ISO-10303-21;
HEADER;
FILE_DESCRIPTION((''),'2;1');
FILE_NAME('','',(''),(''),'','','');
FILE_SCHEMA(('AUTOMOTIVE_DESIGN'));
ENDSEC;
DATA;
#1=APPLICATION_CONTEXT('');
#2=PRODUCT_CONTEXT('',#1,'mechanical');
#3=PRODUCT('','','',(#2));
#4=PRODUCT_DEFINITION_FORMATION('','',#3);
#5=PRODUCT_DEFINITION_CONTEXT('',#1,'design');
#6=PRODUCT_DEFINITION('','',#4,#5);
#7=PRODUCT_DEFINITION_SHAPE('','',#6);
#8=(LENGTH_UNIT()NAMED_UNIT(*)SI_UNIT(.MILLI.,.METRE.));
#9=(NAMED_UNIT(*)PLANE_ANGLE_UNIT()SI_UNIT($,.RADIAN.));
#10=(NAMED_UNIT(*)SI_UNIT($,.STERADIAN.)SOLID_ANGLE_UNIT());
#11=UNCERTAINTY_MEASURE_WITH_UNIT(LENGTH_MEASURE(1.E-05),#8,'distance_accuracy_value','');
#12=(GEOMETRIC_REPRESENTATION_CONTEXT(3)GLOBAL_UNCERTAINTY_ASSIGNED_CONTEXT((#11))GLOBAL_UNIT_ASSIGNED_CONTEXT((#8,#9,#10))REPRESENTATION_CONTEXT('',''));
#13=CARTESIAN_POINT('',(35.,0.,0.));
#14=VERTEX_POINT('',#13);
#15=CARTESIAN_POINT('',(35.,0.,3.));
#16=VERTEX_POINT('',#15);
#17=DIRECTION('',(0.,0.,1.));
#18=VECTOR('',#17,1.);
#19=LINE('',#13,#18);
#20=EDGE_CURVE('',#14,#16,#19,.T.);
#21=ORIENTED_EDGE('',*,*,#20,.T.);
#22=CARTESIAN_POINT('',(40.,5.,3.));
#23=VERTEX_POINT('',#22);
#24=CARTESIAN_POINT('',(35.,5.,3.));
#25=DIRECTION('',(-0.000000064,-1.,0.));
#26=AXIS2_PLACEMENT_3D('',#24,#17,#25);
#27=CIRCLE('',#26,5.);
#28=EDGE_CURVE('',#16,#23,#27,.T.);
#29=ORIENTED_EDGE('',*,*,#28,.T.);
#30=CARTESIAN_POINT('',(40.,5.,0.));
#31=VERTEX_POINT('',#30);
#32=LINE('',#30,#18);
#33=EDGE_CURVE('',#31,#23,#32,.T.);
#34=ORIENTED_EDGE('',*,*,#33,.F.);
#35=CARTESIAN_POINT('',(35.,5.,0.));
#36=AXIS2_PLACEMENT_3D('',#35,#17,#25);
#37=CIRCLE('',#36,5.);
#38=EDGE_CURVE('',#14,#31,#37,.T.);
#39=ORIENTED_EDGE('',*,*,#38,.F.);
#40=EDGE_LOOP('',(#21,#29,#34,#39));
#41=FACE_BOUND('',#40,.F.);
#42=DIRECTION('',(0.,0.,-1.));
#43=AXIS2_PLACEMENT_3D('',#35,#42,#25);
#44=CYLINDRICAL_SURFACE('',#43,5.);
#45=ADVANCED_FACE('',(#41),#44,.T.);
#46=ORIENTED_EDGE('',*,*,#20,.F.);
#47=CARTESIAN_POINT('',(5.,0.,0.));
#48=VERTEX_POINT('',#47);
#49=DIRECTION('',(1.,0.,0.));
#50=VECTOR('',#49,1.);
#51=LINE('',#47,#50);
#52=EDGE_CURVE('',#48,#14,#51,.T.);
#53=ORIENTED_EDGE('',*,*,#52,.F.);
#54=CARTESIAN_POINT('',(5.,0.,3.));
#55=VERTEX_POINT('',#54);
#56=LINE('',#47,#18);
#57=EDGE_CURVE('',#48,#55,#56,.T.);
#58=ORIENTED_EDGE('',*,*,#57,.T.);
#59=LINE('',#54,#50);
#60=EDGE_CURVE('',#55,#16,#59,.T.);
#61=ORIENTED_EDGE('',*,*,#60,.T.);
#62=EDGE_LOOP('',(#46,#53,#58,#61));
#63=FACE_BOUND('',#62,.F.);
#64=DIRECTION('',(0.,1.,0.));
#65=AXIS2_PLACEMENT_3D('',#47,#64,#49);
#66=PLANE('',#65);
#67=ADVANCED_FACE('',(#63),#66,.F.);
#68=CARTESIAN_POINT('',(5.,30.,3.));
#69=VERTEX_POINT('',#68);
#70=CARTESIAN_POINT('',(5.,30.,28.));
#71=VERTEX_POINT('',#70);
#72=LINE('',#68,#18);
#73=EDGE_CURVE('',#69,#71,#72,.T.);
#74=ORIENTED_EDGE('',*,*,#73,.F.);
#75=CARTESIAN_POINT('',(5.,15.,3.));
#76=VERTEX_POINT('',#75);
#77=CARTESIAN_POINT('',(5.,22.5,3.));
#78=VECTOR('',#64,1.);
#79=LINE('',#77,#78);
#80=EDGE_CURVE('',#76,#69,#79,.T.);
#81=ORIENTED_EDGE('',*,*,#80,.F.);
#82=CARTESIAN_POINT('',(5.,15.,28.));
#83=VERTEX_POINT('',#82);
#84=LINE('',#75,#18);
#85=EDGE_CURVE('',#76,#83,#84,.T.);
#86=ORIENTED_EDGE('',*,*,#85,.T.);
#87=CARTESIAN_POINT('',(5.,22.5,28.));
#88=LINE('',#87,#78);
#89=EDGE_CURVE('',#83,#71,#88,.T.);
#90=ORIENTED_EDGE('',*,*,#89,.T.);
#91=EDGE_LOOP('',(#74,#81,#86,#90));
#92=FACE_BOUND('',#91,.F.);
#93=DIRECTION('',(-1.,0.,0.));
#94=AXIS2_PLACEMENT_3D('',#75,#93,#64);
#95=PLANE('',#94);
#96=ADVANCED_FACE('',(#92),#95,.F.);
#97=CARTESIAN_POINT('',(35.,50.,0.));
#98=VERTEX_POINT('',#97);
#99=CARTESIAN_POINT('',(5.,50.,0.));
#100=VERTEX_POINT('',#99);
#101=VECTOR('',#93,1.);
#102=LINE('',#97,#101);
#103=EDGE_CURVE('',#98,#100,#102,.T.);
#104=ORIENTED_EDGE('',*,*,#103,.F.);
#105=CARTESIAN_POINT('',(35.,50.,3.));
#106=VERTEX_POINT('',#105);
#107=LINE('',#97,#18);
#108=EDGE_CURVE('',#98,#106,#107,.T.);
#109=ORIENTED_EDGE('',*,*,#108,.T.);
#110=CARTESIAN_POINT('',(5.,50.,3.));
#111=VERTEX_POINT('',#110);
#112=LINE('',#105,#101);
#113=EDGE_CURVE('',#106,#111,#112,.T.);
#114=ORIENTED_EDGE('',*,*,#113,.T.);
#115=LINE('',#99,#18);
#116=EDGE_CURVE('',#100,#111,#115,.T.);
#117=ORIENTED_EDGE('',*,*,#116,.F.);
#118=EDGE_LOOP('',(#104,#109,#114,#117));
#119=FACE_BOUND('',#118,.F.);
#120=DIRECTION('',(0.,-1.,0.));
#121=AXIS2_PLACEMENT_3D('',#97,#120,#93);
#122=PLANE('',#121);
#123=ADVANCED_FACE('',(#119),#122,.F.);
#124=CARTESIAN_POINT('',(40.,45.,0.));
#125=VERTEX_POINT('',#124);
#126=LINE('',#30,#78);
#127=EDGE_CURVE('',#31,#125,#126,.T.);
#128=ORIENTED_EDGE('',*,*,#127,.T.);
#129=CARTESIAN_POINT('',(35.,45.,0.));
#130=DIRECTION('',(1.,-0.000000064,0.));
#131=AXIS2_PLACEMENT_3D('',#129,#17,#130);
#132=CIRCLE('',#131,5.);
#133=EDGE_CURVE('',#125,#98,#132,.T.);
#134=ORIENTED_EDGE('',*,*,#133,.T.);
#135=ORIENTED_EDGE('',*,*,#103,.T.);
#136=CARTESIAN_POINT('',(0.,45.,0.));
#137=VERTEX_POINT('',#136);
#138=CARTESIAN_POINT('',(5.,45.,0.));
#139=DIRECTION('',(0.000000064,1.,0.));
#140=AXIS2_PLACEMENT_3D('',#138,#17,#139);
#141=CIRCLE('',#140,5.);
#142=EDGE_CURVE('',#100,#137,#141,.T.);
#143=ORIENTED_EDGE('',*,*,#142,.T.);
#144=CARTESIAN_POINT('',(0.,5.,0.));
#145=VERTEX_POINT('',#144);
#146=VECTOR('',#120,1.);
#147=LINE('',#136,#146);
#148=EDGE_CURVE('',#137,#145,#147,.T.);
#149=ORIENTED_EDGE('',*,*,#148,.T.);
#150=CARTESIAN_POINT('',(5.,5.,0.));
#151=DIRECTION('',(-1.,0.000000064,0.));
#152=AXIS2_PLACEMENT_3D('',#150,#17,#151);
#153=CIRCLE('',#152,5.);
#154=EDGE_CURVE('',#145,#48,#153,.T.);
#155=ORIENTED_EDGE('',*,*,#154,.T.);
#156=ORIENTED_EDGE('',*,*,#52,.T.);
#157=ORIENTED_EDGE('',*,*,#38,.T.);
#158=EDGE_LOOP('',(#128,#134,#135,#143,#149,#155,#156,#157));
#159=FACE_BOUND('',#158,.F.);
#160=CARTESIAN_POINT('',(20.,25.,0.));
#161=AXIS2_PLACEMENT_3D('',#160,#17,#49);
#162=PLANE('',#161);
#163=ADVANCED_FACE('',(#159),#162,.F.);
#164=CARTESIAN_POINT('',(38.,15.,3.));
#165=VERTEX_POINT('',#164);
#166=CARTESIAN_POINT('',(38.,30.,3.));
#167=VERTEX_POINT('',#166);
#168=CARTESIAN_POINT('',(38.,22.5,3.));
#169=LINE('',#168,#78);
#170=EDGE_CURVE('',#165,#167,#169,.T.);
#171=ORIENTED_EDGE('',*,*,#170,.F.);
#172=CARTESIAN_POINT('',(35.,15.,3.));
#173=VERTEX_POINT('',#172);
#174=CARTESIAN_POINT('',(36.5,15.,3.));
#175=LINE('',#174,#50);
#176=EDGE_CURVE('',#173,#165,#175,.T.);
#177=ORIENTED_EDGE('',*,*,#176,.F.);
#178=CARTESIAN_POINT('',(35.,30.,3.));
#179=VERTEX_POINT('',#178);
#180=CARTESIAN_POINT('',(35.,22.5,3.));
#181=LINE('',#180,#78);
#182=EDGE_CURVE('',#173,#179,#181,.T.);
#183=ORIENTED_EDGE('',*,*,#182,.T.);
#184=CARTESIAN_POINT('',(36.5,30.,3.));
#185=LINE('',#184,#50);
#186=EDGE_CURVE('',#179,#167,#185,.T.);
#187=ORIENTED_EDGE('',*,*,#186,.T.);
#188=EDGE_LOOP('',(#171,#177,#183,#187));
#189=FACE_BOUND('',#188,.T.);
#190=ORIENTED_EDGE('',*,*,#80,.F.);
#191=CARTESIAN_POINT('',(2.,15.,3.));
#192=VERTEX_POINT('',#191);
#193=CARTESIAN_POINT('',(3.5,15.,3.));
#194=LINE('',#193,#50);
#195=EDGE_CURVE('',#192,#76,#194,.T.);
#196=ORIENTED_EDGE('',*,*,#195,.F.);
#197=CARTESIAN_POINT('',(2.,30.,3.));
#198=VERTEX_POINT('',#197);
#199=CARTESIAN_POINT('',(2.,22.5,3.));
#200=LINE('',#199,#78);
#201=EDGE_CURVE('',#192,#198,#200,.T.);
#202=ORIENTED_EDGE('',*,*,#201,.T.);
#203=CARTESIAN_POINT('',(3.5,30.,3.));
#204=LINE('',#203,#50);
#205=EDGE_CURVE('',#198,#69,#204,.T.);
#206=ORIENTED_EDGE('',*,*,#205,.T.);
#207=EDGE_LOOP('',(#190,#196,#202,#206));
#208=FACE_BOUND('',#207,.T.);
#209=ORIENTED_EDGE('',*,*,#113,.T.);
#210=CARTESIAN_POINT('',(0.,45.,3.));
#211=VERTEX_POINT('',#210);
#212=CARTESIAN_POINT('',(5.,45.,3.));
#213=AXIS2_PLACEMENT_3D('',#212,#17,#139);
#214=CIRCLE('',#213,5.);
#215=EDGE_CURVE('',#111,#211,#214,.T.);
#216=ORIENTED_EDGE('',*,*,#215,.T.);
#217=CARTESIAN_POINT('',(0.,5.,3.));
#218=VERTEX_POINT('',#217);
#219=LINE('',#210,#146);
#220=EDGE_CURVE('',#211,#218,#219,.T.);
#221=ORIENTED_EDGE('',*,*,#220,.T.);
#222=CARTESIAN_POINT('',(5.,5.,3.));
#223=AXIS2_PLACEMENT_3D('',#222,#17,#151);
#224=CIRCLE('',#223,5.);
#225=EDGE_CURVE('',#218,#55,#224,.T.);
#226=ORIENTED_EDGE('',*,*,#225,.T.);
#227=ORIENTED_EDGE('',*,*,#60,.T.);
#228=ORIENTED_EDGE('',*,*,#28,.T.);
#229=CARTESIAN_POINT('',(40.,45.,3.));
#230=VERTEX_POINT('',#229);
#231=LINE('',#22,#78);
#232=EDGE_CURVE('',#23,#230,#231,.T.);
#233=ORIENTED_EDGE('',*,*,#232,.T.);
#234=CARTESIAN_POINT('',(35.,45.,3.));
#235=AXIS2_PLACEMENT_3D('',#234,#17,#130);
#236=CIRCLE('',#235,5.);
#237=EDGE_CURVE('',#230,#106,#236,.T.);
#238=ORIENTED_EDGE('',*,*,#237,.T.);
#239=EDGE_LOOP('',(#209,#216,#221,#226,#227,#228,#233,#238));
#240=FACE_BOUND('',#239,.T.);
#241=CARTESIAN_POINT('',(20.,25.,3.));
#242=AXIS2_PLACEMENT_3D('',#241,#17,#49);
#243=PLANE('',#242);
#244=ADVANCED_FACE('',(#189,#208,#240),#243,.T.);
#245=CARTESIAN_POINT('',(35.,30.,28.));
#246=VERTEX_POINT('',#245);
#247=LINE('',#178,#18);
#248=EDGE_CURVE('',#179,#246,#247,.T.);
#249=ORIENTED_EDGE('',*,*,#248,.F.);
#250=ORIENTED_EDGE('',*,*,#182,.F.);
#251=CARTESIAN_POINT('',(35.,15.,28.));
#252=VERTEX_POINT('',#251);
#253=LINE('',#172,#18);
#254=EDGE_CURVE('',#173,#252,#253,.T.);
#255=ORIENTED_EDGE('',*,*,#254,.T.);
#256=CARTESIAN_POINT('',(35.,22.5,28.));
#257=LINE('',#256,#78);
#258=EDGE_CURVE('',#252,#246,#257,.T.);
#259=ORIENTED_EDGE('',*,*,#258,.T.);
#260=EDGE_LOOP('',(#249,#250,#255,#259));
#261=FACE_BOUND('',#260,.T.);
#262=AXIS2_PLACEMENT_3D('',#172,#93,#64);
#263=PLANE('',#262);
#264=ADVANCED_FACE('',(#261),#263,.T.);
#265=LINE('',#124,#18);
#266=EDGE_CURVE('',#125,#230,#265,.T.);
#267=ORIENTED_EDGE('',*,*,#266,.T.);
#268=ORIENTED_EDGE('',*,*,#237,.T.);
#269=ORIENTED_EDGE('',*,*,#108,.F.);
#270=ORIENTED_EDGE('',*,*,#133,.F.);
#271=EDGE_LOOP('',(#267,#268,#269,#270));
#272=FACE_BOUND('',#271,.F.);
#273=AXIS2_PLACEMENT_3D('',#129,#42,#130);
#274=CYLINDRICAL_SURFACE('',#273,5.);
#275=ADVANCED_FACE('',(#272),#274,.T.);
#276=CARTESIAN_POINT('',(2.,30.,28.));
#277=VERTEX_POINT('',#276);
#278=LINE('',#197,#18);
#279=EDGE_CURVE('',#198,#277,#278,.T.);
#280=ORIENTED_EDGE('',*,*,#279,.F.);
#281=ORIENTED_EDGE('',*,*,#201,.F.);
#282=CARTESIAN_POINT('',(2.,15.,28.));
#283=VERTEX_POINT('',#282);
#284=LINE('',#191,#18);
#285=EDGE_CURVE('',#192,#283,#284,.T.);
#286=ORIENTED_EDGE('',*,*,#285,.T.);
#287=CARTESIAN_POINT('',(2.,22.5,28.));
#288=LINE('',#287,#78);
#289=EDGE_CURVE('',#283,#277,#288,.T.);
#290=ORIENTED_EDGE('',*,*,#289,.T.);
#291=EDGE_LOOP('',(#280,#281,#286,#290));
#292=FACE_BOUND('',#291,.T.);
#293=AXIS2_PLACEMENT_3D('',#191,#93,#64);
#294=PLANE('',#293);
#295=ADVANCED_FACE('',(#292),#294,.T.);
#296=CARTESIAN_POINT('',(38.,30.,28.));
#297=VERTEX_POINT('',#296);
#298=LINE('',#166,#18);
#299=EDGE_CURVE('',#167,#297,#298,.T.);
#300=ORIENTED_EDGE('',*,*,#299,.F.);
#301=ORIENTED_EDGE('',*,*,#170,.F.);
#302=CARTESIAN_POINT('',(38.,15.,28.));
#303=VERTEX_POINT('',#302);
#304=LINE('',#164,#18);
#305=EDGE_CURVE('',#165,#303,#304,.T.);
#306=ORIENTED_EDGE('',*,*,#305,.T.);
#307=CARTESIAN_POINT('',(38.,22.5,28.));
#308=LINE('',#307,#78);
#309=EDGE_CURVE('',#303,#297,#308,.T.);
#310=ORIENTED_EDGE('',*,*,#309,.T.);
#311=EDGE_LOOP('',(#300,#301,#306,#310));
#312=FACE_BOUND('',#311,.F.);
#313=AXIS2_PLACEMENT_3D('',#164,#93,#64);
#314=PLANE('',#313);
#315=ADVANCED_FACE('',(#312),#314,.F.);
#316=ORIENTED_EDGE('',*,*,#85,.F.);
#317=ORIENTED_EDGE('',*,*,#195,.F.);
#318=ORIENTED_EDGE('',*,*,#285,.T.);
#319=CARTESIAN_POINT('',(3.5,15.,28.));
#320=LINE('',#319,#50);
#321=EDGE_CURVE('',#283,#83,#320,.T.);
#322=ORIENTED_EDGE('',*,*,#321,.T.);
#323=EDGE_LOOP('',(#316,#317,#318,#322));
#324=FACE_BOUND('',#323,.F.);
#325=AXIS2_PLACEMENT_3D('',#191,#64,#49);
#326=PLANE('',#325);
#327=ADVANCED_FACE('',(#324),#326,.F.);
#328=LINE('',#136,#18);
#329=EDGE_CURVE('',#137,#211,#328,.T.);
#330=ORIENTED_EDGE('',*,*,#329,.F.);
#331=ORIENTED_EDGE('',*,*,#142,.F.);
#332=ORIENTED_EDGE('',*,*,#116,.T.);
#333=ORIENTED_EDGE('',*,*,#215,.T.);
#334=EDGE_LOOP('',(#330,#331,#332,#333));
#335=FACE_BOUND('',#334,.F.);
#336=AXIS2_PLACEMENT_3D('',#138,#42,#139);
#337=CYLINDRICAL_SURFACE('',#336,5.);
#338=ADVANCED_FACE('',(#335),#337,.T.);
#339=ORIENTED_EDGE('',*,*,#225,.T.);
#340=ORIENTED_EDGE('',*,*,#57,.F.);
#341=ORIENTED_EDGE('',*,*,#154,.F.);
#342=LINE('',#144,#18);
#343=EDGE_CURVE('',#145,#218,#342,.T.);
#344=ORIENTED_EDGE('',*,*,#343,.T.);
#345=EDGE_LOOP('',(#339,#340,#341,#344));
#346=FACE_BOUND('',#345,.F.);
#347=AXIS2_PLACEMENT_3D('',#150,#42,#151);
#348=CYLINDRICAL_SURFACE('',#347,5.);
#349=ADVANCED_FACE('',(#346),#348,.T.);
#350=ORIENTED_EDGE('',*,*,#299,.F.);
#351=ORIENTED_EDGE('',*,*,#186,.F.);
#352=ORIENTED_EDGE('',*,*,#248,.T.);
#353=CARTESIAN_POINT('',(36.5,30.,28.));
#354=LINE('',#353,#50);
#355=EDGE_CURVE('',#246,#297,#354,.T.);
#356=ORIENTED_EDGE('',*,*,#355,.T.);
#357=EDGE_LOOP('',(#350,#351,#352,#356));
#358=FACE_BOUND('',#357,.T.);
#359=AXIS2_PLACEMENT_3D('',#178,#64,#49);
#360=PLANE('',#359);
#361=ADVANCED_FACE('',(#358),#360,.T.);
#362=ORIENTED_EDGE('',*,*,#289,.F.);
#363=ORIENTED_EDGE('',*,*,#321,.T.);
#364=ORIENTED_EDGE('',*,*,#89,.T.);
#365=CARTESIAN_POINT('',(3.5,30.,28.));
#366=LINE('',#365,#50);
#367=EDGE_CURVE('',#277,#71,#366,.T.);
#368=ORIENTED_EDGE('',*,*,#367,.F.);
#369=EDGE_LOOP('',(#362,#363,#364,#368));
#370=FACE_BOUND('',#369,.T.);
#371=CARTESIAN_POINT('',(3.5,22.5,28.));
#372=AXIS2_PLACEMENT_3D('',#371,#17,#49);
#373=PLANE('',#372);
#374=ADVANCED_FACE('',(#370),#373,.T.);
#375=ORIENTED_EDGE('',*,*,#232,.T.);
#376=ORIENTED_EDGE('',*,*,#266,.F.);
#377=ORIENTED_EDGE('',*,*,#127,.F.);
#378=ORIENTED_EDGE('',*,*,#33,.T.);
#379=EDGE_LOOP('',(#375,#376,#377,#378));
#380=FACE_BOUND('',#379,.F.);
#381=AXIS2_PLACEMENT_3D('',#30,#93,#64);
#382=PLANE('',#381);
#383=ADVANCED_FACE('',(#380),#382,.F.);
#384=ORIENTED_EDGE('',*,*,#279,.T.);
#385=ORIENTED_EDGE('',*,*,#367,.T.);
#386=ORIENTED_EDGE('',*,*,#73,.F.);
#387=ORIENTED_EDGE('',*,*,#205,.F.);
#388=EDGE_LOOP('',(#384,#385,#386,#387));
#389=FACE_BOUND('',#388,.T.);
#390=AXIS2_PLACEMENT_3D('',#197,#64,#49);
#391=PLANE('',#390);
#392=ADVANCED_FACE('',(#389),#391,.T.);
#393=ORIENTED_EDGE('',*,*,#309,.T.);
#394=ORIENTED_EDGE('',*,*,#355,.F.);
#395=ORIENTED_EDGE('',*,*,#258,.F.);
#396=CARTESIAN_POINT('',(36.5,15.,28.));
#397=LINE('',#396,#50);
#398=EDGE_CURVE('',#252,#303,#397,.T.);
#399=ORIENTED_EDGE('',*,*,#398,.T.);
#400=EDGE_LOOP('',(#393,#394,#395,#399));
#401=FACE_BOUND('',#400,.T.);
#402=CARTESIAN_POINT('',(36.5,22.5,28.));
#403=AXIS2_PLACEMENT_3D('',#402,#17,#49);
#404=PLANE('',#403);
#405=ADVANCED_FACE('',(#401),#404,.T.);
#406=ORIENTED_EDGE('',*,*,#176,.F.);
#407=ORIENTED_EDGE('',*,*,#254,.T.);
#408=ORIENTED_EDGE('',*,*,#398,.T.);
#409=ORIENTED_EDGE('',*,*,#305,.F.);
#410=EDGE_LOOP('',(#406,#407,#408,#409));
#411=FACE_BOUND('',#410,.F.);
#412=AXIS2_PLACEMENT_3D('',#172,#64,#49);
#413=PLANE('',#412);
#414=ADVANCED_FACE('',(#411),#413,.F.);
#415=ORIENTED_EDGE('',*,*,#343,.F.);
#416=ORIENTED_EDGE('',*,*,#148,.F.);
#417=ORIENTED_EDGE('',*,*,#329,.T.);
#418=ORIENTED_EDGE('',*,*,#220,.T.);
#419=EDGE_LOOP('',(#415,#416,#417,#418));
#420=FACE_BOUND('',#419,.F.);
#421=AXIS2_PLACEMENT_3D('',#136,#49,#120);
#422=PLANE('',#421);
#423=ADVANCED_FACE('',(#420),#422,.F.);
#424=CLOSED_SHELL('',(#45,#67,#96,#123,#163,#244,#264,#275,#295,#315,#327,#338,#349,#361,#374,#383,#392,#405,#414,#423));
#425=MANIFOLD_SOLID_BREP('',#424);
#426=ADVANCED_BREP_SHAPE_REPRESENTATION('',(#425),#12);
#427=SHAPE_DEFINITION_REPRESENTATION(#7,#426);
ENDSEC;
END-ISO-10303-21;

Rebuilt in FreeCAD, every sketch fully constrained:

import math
import FreeCAD as App
import Part
import Sketcher
Q = App.Units.Quantity


def add_polygon(sketch, points):
    """Adds a closed chain of lines whose ends are joined by coincident constraints."""
    first, n = sketch.GeometryCount, len(points)
    for a, b in zip(points, points[1:] + points[:1]):
        sketch.addGeometry(Part.LineSegment(App.Vector(*a, 0), App.Vector(*b, 0)), False)
    for i in range(n):
        sketch.addConstraint(Sketcher.Constraint("Coincident", first + i, 2, first + (i + 1) % n, 1))

doc = App.newDocument("Part")
body = doc.addObject("PartDesign::Body", "Body")

# Sketch on XY plane
sketch1 = body.newObject("Sketcher::SketchObject", "Sketch")
sketch1.AttachmentSupport = (doc.getObject("XY_Plane"), [""])
sketch1.MapMode = "FlatFace"
sketch1.addGeometry([
    Part.ArcOfCircle(Part.Circle(App.Vector(5, 5, 0), App.Vector(0, 0, 1), 5), math.radians(179.999996), math.radians(270.000004)),  # 0
    Part.LineSegment(App.Vector(5, 0, 0), App.Vector(35, 0, 0)),  # 1
    Part.ArcOfCircle(Part.Circle(App.Vector(35, 5, 0), App.Vector(0, 0, 1), 5), math.radians(-90.000004), math.radians(0.000004)),  # 2
    Part.LineSegment(App.Vector(40, 5, 0), App.Vector(40, 45, 0)),  # 3
    Part.ArcOfCircle(Part.Circle(App.Vector(35, 45, 0), App.Vector(0, 0, 1), 5), math.radians(-0.000004), math.radians(90.000004)),  # 4
    Part.LineSegment(App.Vector(35, 50, 0), App.Vector(5, 50, 0)),  # 5
    Part.ArcOfCircle(Part.Circle(App.Vector(5, 45, 0), App.Vector(0, 0, 1), 5), math.radians(89.999996), math.radians(180.000004)),  # 6
    Part.LineSegment(App.Vector(0, 45, 0), App.Vector(0, 5, 0)),  # 7
], False)
sketch1.addConstraint([
    Sketcher.Constraint("Tangent", 0, 2, 1, 1),
    Sketcher.Constraint("Tangent", 1, 2, 2, 1),
    Sketcher.Constraint("Tangent", 2, 2, 3, 1),
    Sketcher.Constraint("Tangent", 3, 2, 4, 1),
    Sketcher.Constraint("Tangent", 4, 2, 5, 1),
    Sketcher.Constraint("Tangent", 5, 2, 6, 1),
    Sketcher.Constraint("Tangent", 6, 2, 7, 1),
    Sketcher.Constraint("Tangent", 7, 2, 0, 1),
    Sketcher.Constraint("Horizontal", 1),
    Sketcher.Constraint("Vertical", 3),
    Sketcher.Constraint("Horizontal", 5),
    Sketcher.Constraint("Vertical", 7),
    Sketcher.Constraint("Equal", 0, 2),
    Sketcher.Constraint("Equal", 2, 4),
    Sketcher.Constraint("Equal", 4, 6),
    Sketcher.Constraint("PointOnObject", 0, 2, -1),
    Sketcher.Constraint("PointOnObject", 6, 2, -2),
    Sketcher.Constraint("Radius", 0, Q("5 mm")),
    Sketcher.Constraint("DistanceX", 1, 1, 1, 2, Q("30 mm")),
    Sketcher.Constraint("DistanceY", 3, 1, 3, 2, Q("40 mm")),
])
pad1 = body.newObject("PartDesign::Pad", "Pad")
pad1.Profile = sketch1
pad1.Length = 3

# Sketch on XY plane
sketch2 = body.newObject("Sketcher::SketchObject", "Sketch001")
sketch2.AttachmentSupport = (doc.getObject("XY_Plane"), [""])
sketch2.MapMode = "FlatFace"
sketch2.AttachmentOffset = App.Placement(App.Vector(0, 0, 3), App.Rotation())
add_polygon(sketch2, [(35, 30), (35, 15), (38, 15), (38, 30)])  # lines 0-3
add_polygon(sketch2, [(2, 30), (2, 15), (5, 15), (5, 30)])  # lines 4-7
sketch2.addConstraint([
    Sketcher.Constraint("Vertical", 0),
    Sketcher.Constraint("Horizontal", 1),
    Sketcher.Constraint("Vertical", 2),
    Sketcher.Constraint("Horizontal", 3),
    Sketcher.Constraint("Vertical", 4),
    Sketcher.Constraint("Horizontal", 5),
    Sketcher.Constraint("Vertical", 6),
    Sketcher.Constraint("Horizontal", 7),
    Sketcher.Constraint("Horizontal", 1, 2, 4, 2),
    Sketcher.Constraint("Horizontal", 3, 2, 6, 2),
    Sketcher.Constraint("Equal", 3, 5),
    Sketcher.Constraint("DistanceX", 1, 1, 1, 2, Q("3 mm")),
    Sketcher.Constraint("DistanceY", 0, 2, 0, 1, Q("15 mm")),
    Sketcher.Constraint("DistanceX", -1, 1, 0, 2, Q("35 mm")),
    Sketcher.Constraint("DistanceY", -1, 1, 0, 2, Q("15 mm")),
    Sketcher.Constraint("DistanceX", -1, 1, 4, 2, Q("2 mm")),
])
pad2 = body.newObject("PartDesign::Pad", "Pad001")
pad2.Profile = sketch2
pad2.Length = 25

doc.recompute()
